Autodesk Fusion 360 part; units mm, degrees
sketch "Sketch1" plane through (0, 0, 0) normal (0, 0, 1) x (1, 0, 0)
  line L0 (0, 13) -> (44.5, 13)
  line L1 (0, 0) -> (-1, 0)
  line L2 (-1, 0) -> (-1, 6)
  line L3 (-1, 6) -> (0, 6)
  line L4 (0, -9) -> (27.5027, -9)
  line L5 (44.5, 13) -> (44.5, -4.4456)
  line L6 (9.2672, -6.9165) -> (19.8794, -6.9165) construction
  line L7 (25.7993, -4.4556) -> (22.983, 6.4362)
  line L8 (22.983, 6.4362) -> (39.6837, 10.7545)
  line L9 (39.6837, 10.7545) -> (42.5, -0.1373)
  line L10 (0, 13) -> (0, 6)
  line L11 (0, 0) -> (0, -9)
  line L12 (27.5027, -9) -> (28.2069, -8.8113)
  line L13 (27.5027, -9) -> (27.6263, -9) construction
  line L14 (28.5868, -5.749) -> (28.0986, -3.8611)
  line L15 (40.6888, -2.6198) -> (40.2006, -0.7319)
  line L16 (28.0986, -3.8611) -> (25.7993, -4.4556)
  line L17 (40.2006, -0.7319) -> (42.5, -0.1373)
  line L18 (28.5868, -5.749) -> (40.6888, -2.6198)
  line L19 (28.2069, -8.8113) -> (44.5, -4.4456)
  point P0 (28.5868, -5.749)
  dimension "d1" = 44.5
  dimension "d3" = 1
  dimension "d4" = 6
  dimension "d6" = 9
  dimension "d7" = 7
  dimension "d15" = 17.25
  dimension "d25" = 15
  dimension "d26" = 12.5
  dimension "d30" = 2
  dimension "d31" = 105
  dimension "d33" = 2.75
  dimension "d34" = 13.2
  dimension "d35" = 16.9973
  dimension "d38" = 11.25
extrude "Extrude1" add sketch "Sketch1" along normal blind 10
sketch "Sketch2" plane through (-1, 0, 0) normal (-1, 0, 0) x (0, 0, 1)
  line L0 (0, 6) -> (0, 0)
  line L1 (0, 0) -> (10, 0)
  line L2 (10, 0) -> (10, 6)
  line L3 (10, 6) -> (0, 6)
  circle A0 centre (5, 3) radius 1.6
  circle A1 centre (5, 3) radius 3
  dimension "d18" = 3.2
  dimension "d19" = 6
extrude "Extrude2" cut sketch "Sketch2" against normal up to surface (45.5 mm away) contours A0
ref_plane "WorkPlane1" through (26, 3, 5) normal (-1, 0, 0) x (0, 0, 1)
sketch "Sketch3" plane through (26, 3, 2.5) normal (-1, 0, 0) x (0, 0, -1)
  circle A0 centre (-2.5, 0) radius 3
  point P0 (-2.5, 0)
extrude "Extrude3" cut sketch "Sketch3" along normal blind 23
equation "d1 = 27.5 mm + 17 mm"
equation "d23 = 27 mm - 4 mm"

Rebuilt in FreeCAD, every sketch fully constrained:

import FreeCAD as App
import Part
import Sketcher
Q = App.Units.Quantity

doc = App.newDocument("Part")
body = doc.addObject("PartDesign::Body", "Body")

# Sketch on XY plane
sketch1 = doc.addObject("Sketcher::SketchObject", "Sketch")
body.addObject(sketch1)
sketch1.AttachmentSupport = (doc.XY_Plane, [""])
sketch1.MapMode = "FlatFace"
sketch1.addGeometry([
    Part.LineSegment(App.Vector(44.5, 13, 0), App.Vector(0, 13, 0)),  # 0
    Part.LineSegment(App.Vector(0, 13, 0), App.Vector(0, 6, 0)),  # 1
    Part.LineSegment(App.Vector(0, 6, 0), App.Vector(-1, 6, 0)),  # 2
    Part.LineSegment(App.Vector(-1, 6, 0), App.Vector(-1, 0, 0)),  # 3
    Part.LineSegment(App.Vector(-1, 0, 0), App.Vector(0, 0, 0)),  # 4
    Part.LineSegment(App.Vector(0, 0, 0), App.Vector(0, -9, 0)),  # 5
    Part.LineSegment(App.Vector(0, -9, 0), App.Vector(27.5, -9, 0)),  # 6
    Part.LineSegment(App.Vector(27.5, -9, 0), App.Vector(28.2, -8.8, 0)),  # 7
    Part.LineSegment(App.Vector(28.2, -8.8, 0), App.Vector(44.5, -4.4, 0)),  # 8
    Part.LineSegment(App.Vector(44.5, -4.4, 0), App.Vector(44.5, 13, 0)),  # 9
    Part.LineSegment(App.Vector(28.1, -3.9, 0), App.Vector(25.8, -4.5, 0)),  # 10
    Part.LineSegment(App.Vector(25.8, -4.5, 0), App.Vector(23, 6.4, 0)),  # 11
    Part.LineSegment(App.Vector(23, 6.4, 0), App.Vector(39.7, 10.8, 0)),  # 12
    Part.LineSegment(App.Vector(39.7, 10.8, 0), App.Vector(42.5, -0.1, 0)),  # 13
    Part.LineSegment(App.Vector(42.5, -0.1, 0), App.Vector(40.2, -0.7, 0)),  # 14
    Part.LineSegment(App.Vector(40.2, -0.7, 0), App.Vector(40.7, -2.6, 0)),  # 15
    Part.LineSegment(App.Vector(40.7, -2.6, 0), App.Vector(28.6, -5.7, 0)),  # 16
    Part.LineSegment(App.Vector(28.6, -5.7, 0), App.Vector(28.1, -3.9, 0)),  # 17
], False)
sketch1.addConstraint([
    Sketcher.Constraint("Coincident", 0, 2, 1, 1),
    Sketcher.Constraint("Coincident", 1, 2, 2, 1),
    Sketcher.Constraint("Coincident", 2, 2, 3, 1),
    Sketcher.Constraint("Coincident", 3, 2, 4, 1),
    Sketcher.Constraint("Coincident", 4, 2, 5, 1),
    Sketcher.Constraint("Coincident", 5, 2, 6, 1),
    Sketcher.Constraint("Coincident", 6, 2, 7, 1),
    Sketcher.Constraint("Coincident", 7, 2, 8, 1),
    Sketcher.Constraint("Coincident", 8, 2, 9, 1),
    Sketcher.Constraint("Coincident", 9, 2, 0, 1),
    Sketcher.Constraint("Coincident", 10, 2, 11, 1),
    Sketcher.Constraint("Coincident", 11, 2, 12, 1),
    Sketcher.Constraint("Coincident", 12, 2, 13, 1),
    Sketcher.Constraint("Coincident", 13, 2, 14, 1),
    Sketcher.Constraint("Coincident", 14, 2, 15, 1),
    Sketcher.Constraint("Coincident", 15, 2, 16, 1),
    Sketcher.Constraint("Coincident", 16, 2, 17, 1),
    Sketcher.Constraint("Coincident", 17, 2, 10, 1),
    Sketcher.Constraint("Horizontal", 0),
    Sketcher.Constraint("Vertical", 1),
    Sketcher.Constraint("Horizontal", 2),
    Sketcher.Constraint("Vertical", 3),
    Sketcher.Constraint("Horizontal", 4),
    Sketcher.Constraint("Vertical", 5),
    Sketcher.Constraint("Horizontal", 6),
    Sketcher.Constraint("Vertical", 9),
    Sketcher.Constraint("Coincident", 4, 2, -1, 1),
    Sketcher.Constraint("PointOnObject", 0, 2, -2),
    Sketcher.Constraint("Parallel", 7, 8),
    Sketcher.Constraint("Perpendicular", 10, 11),
    Sketcher.Constraint("Perpendicular", 11, 12),
    Sketcher.Constraint("Perpendicular", 12, 13),
    Sketcher.Constraint("Perpendicular", 13, 14),
    Sketcher.Constraint("Perpendicular", 14, 15),
    Sketcher.Constraint("Perpendicular", 15, 16),
    Sketcher.Constraint("Perpendicular", 16, 17),
    Sketcher.Constraint("Equal", 11, 13),
    Sketcher.Constraint("Equal", 10, 14),
    Sketcher.Constraint("DistanceX", 2, 2, 2, 1, Q("1 mm")),
    Sketcher.Constraint("DistanceY", 1, 2, 1, 1, Q("7 mm")),
    Sketcher.Constraint("DistanceY", 3, 2, 3, 1, Q("6 mm")),
    Sketcher.Constraint("DistanceY", 5, 2, 5, 1, Q("9 mm")),
    Sketcher.Constraint("Angle", 8, Q("15 deg")),
    Sketcher.Constraint("DistanceX", 0, 2, 0, 1, Q("44.5 mm")),
    Sketcher.Constraint("DistanceX", 13, 2, 8, 2, Q("2 mm")),
    Sketcher.Constraint("Distance", 16, Q("12.5 mm")),
    Sketcher.Constraint("Distance", 11, Q("11.25 mm")),
    Sketcher.Constraint("Distance", 12, Q("17.25 mm")),
    Sketcher.Constraint("DistanceX", 6, 2, 8, 2, Q("16.9973 mm")),
    Sketcher.Constraint("DistanceY", 8, 2, 12, 2, Q("15.2 mm")),
    Sketcher.Constraint("Distance", 15, Q("1.95 mm")),
    Sketcher.Constraint("DistanceY", 10, 2, 8, 2, Q("0.01 mm")),
    Sketcher.Constraint("DistanceX", 7, 2, 16, 2, Q("0.38 mm")),
])
pad1 = doc.addObject("PartDesign::Pad", "Pad")
body.addObject(pad1)
pad1.Profile = sketch1
pad1.Length = 10

# Sketch on YZ plane
sketch2 = doc.addObject("Sketcher::SketchObject", "Sketch001")
body.addObject(sketch2)
sketch2.AttachmentSupport = (doc.YZ_Plane, [""])
sketch2.MapMode = "FlatFace"
sketch2.AttachmentOffset = App.Placement(App.Vector(0, 0, -1), App.Rotation())
sketch2.addGeometry(Part.Circle(App.Vector(3, 5, 0), App.Vector(0, 0, 1), 1.6), False)
sketch2.addConstraint([
    Sketcher.Constraint("Diameter", 0, Q("3.2 mm")),
    Sketcher.Constraint("DistanceX", -1, 1, 0, 3, Q("3 mm")),
    Sketcher.Constraint("DistanceY", -1, 1, 0, 3, Q("5 mm")),
])
pocket1 = doc.addObject("PartDesign::Pocket", "Pocket")
body.addObject(pocket1)
pocket1.Profile = sketch2
pocket1.Length = 45.5
pocket1.Reversed = True

# Sketch on YZ plane
sketch3 = doc.addObject("Sketcher::SketchObject", "Sketch002")
body.addObject(sketch3)
sketch3.AttachmentSupport = (doc.YZ_Plane, [""])
sketch3.MapMode = "FlatFace"
sketch3.AttachmentOffset = App.Placement(App.Vector(0, 0, 26), App.Rotation())
sketch3.addGeometry(Part.Circle(App.Vector(3, 5, 0), App.Vector(0, 0, 1), 3), False)
sketch3.addConstraint([
    Sketcher.Constraint("Diameter", 0, Q("6 mm")),
    Sketcher.Constraint("DistanceX", -1, 1, 0, 3, Q("3 mm")),
    Sketcher.Constraint("DistanceY", -1, 1, 0, 3, Q("5 mm")),
])
pocket2 = doc.addObject("PartDesign::Pocket", "Pocket001")
body.addObject(pocket2)
pocket2.Profile = sketch3
pocket2.Length = 23

doc.recompute()
